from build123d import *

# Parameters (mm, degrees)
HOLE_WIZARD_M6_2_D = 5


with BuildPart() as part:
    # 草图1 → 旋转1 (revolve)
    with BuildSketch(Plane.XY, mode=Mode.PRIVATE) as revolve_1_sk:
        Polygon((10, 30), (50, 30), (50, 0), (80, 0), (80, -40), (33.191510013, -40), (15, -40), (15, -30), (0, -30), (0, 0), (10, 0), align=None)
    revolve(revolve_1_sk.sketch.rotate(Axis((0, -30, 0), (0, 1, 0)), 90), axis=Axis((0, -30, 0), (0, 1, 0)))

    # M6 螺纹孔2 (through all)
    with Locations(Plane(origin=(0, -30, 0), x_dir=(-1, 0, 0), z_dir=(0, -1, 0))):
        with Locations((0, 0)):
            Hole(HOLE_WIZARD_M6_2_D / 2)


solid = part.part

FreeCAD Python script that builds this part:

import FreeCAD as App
import Part
import Sketcher

V = App.Vector


def add_polygon(sketch, points):
    """Adds a closed chain of lines whose ends are joined by coincident constraints."""
    first, n = sketch.GeometryCount, len(points)
    for a, b in zip(points, points[1:] + points[:1]):
        sketch.addGeometry(Part.LineSegment(App.Vector(*a, 0), App.Vector(*b, 0)), False)
    for i in range(n):
        sketch.addConstraint(Sketcher.Constraint("Coincident", first + i, 2, first + (i + 1) % n, 1))

doc = App.newDocument("Part")
params = doc.addObject("Spreadsheet::Sheet", "Params")
for row, (alias, value) in enumerate([
    ("sketch1_width", "40 mm"),
    ("sketch1_width2", "10 mm"),
    ("sketch1_width3", "15 mm"),
    ("revolution_angle", "360 deg"),
    ("sketch2_diameter", "5 mm"),
    ("hole_diameter", "5 mm"),
], start=1):
    params.set(f"A{row}", alias)
    params.set(f"B{row}", "=" + value)
    params.setAlias(f"B{row}", alias)

body = doc.addObject("PartDesign::Body", "Body")

sketch1 = body.newObject("Sketcher::SketchObject", "Sketch")
sketch1.AttachmentSupport = (doc.getObject("XY_Plane"), [""])
sketch1.MapMode = "FlatFace"
add_polygon(sketch1, [(50, 30), (10, 30), (10, 0), (0, 0), (0, -30), (15, -30), (15, -40), (80, -40), (80, 0), (50, 0)])
sketch1.addConstraint([
    Sketcher.Constraint("Horizontal", 0),
    Sketcher.Constraint("Vertical", 1),
    Sketcher.Constraint("Horizontal", 2),
    Sketcher.Constraint("Vertical", 3),
    Sketcher.Constraint("Horizontal", 4),
    Sketcher.Constraint("Vertical", 5),
    Sketcher.Constraint("Horizontal", 6),
    Sketcher.Constraint("Vertical", 7),
    Sketcher.Constraint("Horizontal", 8),
    Sketcher.Constraint("Vertical", 9),
    Sketcher.Constraint("Coincident", 2, 2, -1, 1),
    Sketcher.Constraint("PointOnObject", 7, 2, -1),
    Sketcher.Constraint("Equal", 8, 1),
    Sketcher.Constraint("Equal", 1, 3),
    Sketcher.Constraint("Equal", 2, 5),
    Sketcher.Constraint("Equal", 0, 7),
    Sketcher.Constraint("DistanceX", 0, 2, 0, 1, 40.0),
    Sketcher.Constraint("DistanceX", 2, 2, 2, 1, 10.0),
    Sketcher.Constraint("DistanceX", 4, 1, 4, 2, 15.0),
])
sketch1.setExpression("Constraints[26]", "Params.sketch1_width")
sketch1.setExpression("Constraints[27]", "Params.sketch1_width2")
sketch1.setExpression("Constraints[28]", "Params.sketch1_width3")
revolution = body.newObject("PartDesign::Revolution", "Revolution")
revolution.Profile = sketch1
revolution.ReferenceAxis = (sketch1, ["V_Axis"])
revolution.setExpression("Angle", "Params.revolution_angle")

sketch2 = body.newObject("Sketcher::SketchObject", "Sketch001")
sketch2.AttachmentSupport = (doc.getObject("XZ_Plane"), [""])
sketch2.MapMode = "FlatFace"
sketch2.AttachmentOffset = App.Placement(V(0, 0, 30), App.Rotation())
sketch2.addGeometry(Part.Circle(V(0, 0, 0), V(0, 0, 1), 2.5), False)
sketch2.addConstraint([
    Sketcher.Constraint("Coincident", 0, 3, -1, 1),
    Sketcher.Constraint("Diameter", 0, 5.0),
])
sketch2.setExpression("Constraints[1]", "Params.sketch2_diameter")
doc.recompute()
hole = body.newObject("PartDesign::Hole", "Hole")
hole.Profile = sketch2
hole.ThreadType = "None"
hole.setExpression("Diameter", "Params.hole_diameter")
hole.DepthType = "ThroughAll"

doc.recompute()
